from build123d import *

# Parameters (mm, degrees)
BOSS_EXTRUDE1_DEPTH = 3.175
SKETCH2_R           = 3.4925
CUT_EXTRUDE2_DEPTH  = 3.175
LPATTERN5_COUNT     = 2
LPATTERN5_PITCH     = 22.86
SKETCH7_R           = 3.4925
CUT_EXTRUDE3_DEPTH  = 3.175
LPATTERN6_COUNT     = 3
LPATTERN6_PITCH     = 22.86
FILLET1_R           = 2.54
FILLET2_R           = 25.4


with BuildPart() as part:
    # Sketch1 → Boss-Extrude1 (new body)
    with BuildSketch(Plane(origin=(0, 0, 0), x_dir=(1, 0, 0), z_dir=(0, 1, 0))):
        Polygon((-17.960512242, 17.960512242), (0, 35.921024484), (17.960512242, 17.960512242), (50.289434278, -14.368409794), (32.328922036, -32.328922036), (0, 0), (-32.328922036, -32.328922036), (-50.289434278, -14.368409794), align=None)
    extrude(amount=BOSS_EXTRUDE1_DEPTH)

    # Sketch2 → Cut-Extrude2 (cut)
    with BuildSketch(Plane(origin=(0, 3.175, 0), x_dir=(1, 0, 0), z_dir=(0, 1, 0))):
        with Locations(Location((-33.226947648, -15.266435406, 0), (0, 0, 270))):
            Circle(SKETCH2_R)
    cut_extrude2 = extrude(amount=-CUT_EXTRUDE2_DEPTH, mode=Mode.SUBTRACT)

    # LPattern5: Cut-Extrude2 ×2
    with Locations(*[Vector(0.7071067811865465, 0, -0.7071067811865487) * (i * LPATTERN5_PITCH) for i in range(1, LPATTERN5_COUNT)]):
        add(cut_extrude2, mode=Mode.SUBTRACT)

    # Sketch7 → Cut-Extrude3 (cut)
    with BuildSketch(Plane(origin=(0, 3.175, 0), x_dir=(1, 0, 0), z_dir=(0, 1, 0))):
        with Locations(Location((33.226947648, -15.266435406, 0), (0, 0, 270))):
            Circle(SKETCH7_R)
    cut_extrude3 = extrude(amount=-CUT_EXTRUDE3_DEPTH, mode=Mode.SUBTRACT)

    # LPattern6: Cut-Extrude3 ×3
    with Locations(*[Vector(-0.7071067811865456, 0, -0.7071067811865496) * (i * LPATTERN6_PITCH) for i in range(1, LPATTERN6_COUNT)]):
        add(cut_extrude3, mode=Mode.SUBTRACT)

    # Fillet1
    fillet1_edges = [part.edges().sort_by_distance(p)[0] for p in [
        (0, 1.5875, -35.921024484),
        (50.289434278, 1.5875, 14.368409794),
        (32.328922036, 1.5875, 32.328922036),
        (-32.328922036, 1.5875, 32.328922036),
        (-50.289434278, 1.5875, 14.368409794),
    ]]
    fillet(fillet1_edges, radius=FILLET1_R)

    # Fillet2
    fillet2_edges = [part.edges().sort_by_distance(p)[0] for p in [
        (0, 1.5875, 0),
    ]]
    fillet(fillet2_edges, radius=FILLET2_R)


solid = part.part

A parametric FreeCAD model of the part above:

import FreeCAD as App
import Part
import Sketcher

V = App.Vector
Q = App.Units.Quantity


def edges_at(feature, points):
    """Names of the edges that pass closest to the given points."""
    edges = feature.Shape.Edges
    near = lambda p: min(range(len(edges)), key=lambda i: edges[i].distToShape(Part.Vertex(*p))[0])
    return sorted({f"Edge{near(p) + 1}" for p in points})


def add_polygon(sketch, points):
    """Adds a closed chain of lines whose ends are joined by coincident constraints."""
    first, n = sketch.GeometryCount, len(points)
    for a, b in zip(points, points[1:] + points[:1]):
        sketch.addGeometry(Part.LineSegment(App.Vector(*a, 0), App.Vector(*b, 0)), False)
    for i in range(n):
        sketch.addConstraint(Sketcher.Constraint("Coincident", first + i, 2, first + (i + 1) % n, 1))

doc = App.newDocument("Part")
body = doc.addObject("PartDesign::Body", "Body")

# Sketch on XZ plane
sketch1 = body.newObject("Sketcher::SketchObject", "Sketch")
sketch1.AttachmentSupport = (doc.getObject("XZ_Plane"), [""])
sketch1.MapMode = "FlatFace"
add_polygon(sketch1, [(0, -35.921024), (-50.289434, 14.36841), (-32.328922, 32.328922), (0, 0), (32.328922, 32.328922), (50.289434, 14.36841)])  # lines 0-5
sketch1.addConstraint([
    Sketcher.Constraint("Coincident", 2, 2, -1, 1),
    Sketcher.Constraint("Symmetric", 1, 2, 3, 2, -2),
    Sketcher.Constraint("Symmetric", 0, 2, 4, 2, -2),
    Sketcher.Constraint("PointOnObject", 5, 2, -2),
    Sketcher.Constraint("Perpendicular", 0, 1),
    Sketcher.Constraint("Perpendicular", 1, 2),
    Sketcher.Constraint("Perpendicular", 2, 3),
    Sketcher.Constraint("Distance", 1, Q("1 in")),
    Sketcher.Constraint("Distance", 0, Q("2.8 in")),
])
pad1 = body.newObject("PartDesign::Pad", "Pad")
pad1.Profile = sketch1
pad1.Length = Q("0.125 in")
pad1.Reversed = True

# Sketch on XZ plane
sketch2 = body.newObject("Sketcher::SketchObject", "Sketch001")
sketch2.AttachmentSupport = (doc.getObject("XZ_Plane"), [""])
sketch2.MapMode = "FlatFace"
sketch2.AttachmentOffset = App.Placement(V(0, 0, -0.125 * 25.4), App.Rotation())
sketch2.addGeometry(Part.Circle(V(-33.226948, 15.266435, 0), V(0, 0, 1), 3.4925), False)
sketch2.addConstraint([
    Sketcher.Constraint("Diameter", 0, Q("0.275 in")),
    Sketcher.Constraint("DistanceX", 0, 3, -1, 1, 33.226948),
    Sketcher.Constraint("DistanceY", -1, 1, 0, 3, 15.266435),
])
pocket1 = body.newObject("PartDesign::Pocket", "Pocket")
pocket1.Profile = sketch2
pocket1.Length = Q("0.125 in")
pocket1.Reversed = True
doc.recompute()

datumline = body.newObject("PartDesign::Line", "DatumLine")
datumline.Placement = App.Placement(V(0, 0, 0), App.Rotation(V(0, 0, 1), V(0.707106781, 0, -0.707106781)))
linearpattern = body.newObject("PartDesign::LinearPattern", "LinearPattern")
linearpattern.Originals = [pocket1]
linearpattern.Direction = (datumline, [""])
linearpattern.Mode = "offset"
linearpattern.Offset = Q("0.9 in")
linearpattern.Occurrences = 2
body.Tip = linearpattern

# Sketch on XZ plane
sketch3 = body.newObject("Sketcher::SketchObject", "Sketch002")
sketch3.AttachmentSupport = (doc.getObject("XZ_Plane"), [""])
sketch3.MapMode = "FlatFace"
sketch3.AttachmentOffset = App.Placement(V(0, 0, -0.125 * 25.4), App.Rotation())
sketch3.addGeometry(Part.Circle(V(33.226948, 15.266435, 0), V(0, 0, 1), 3.4925), False)
sketch3.addConstraint([
    Sketcher.Constraint("Diameter", 0, Q("0.275 in")),
    Sketcher.Constraint("DistanceX", -1, 1, 0, 3, 33.226948),
    Sketcher.Constraint("DistanceY", -1, 1, 0, 3, 15.266435),
])
pocket2 = body.newObject("PartDesign::Pocket", "Pocket001")
pocket2.Profile = sketch3
pocket2.Length = Q("0.125 in")
pocket2.Reversed = True
doc.recompute()

datumline2 = body.newObject("PartDesign::Line", "DatumLine001")
datumline2.Placement = App.Placement(V(0, 0, 0), App.Rotation(V(0, 0, 1), V(-0.707106781, 0, -0.707106781)))
linearpattern2 = body.newObject("PartDesign::LinearPattern", "LinearPattern001")
linearpattern2.Originals = [pocket2]
linearpattern2.Direction = (datumline2, [""])
linearpattern2.Mode = "offset"
linearpattern2.Offset = Q("0.9 in")
linearpattern2.Occurrences = 3
body.Tip = linearpattern2
doc.recompute()

fillet = body.newObject("PartDesign::Fillet", "Fillet")
fillet.Base = (linearpattern2, edges_at(linearpattern2, [
    (0, 1.587, -35.921),
    (50.289, 1.587, 14.368),
    (32.329, 1.587, 32.329),
    (-32.329, 1.587, 32.329),
    (-50.289, 1.587, 14.368),
]))
fillet.Radius = Q("0.1 in")
doc.recompute()

fillet2 = body.newObject("PartDesign::Fillet", "Fillet001")
fillet2.Base = (fillet, edges_at(fillet, [(0, 1.587, 0)]))
fillet2.Radius = Q("1 in")

doc.recompute()
